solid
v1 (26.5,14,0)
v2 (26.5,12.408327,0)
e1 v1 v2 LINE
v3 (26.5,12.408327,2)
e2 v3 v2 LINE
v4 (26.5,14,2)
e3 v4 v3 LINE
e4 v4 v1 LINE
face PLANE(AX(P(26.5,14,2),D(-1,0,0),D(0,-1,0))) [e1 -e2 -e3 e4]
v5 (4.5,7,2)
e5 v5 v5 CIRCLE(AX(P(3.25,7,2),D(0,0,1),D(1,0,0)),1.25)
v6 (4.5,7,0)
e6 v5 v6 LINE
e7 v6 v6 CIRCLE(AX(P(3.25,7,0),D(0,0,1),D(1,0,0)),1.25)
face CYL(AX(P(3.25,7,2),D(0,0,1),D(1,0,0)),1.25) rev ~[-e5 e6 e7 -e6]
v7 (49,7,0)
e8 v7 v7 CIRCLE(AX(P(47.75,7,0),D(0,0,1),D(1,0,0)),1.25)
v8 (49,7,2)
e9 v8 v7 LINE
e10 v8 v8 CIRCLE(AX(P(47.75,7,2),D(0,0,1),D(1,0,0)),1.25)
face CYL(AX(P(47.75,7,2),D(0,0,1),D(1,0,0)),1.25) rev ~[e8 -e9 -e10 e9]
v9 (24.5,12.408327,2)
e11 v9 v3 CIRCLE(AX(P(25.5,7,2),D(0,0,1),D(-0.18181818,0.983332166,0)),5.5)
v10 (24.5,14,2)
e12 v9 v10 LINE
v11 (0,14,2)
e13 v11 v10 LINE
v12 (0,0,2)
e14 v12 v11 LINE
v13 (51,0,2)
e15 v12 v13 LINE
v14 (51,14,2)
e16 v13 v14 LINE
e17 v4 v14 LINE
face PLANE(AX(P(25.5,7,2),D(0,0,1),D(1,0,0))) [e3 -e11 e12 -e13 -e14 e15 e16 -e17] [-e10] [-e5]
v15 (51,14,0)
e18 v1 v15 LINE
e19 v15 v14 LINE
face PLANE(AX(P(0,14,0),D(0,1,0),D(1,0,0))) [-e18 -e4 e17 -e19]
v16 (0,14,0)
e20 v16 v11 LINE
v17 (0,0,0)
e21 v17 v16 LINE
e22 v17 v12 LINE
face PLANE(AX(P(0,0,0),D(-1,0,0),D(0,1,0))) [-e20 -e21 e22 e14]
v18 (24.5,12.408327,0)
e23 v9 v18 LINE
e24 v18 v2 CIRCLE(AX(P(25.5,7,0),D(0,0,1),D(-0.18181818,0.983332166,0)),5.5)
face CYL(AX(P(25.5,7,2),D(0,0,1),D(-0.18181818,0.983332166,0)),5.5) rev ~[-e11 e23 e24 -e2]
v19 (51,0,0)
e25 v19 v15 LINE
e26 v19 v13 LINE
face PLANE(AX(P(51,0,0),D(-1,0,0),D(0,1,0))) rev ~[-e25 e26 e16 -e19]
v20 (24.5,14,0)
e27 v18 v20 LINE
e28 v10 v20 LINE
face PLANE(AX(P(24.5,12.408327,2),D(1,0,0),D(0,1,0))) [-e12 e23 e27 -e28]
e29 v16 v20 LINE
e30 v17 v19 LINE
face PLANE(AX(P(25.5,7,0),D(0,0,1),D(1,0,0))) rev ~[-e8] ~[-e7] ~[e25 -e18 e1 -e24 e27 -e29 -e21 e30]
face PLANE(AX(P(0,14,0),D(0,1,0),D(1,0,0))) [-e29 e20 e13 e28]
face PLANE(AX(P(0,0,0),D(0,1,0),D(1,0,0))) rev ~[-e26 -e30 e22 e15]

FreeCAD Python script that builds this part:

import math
import FreeCAD as App
import Part
import Sketcher
from FreeCAD import Vector


def add_polygon(sketch, points):
    """Adds a closed chain of lines whose ends are joined by coincident constraints."""
    first, n = sketch.GeometryCount, len(points)
    for a, b in zip(points, points[1:] + points[:1]):
        sketch.addGeometry(Part.LineSegment(App.Vector(*a, 0), App.Vector(*b, 0)), False)
    for i in range(n):
        sketch.addConstraint(Sketcher.Constraint("Coincident", first + i, 2, first + (i + 1) % n, 1))

doc = App.newDocument("Part")
body = doc.addObject("PartDesign::Body", "Body")

sketch1 = body.newObject("Sketcher::SketchObject", "Sketch")
sketch1.AttachmentSupport = (doc.getObject("XY_Plane"), [""])
sketch1.MapMode = "FlatFace"
add_polygon(sketch1, [(0, 14), (0, 0), (51, 0), (51, 14)])
sketch1.addConstraint(Sketcher.Constraint("Vertical", 0))
sketch1.addConstraint(Sketcher.Constraint("Horizontal", 1))
sketch1.addConstraint(Sketcher.Constraint("Vertical", 2))
sketch1.addConstraint(Sketcher.Constraint("Horizontal", 3))
sketch1.addConstraint(Sketcher.Constraint("Coincident", 0, 2, -1, 1))
sketch1.addConstraint(Sketcher.Constraint("DistanceX", 1, 1, 1, 2, 51.0))
sketch1.addConstraint(Sketcher.Constraint("DistanceY", 0, 2, 0, 1, 14.0))
pad1 = body.newObject("PartDesign::Pad", "Pad")
pad1.Profile = sketch1
pad1.Length = 2

sketch2 = body.newObject("Sketcher::SketchObject", "Sketch001")
sketch2.AttachmentSupport = (doc.getObject("XY_Plane"), [""])
sketch2.MapMode = "FlatFace"
sketch2.AttachmentOffset = App.Placement(Vector(0, 0, 2), App.Rotation())
sketch2.addGeometry(Part.Circle(Vector(3.2, 7, 0), Vector(0, 0, 1), 1.2), False)
sketch2.addGeometry(Part.Circle(Vector(47.8, 7, 0), Vector(0, 0, 1), 1.2), False)
sketch2.addGeometry(Part.LineSegment(Vector(24.5, 14, 0), Vector(24.5, 12.4, 0)), False)
sketch2.addGeometry(Part.ArcOfCircle(Part.Circle(Vector(25.5, 7, 0), Vector(0, 0, 1), 5.5), math.radians(100), math.radians(440)), False)
sketch2.addGeometry(Part.LineSegment(Vector(26.5, 12.4, 0), Vector(26.5, 14, 0)), False)
sketch2.addGeometry(Part.LineSegment(Vector(26.5, 14, 0), Vector(24.5, 14, 0)), False)
sketch2.addConstraint(Sketcher.Constraint("Coincident", 2, 2, 3, 1))
sketch2.addConstraint(Sketcher.Constraint("Coincident", 3, 2, 4, 1))
sketch2.addConstraint(Sketcher.Constraint("Coincident", 4, 2, 5, 1))
sketch2.addConstraint(Sketcher.Constraint("Coincident", 5, 2, 2, 1))
sketch2.addConstraint(Sketcher.Constraint("Vertical", 2))
sketch2.addConstraint(Sketcher.Constraint("Vertical", 4))
sketch2.addConstraint(Sketcher.Constraint("Horizontal", 5))
sketch2.addConstraint(Sketcher.Constraint("Equal", 0, 1))
sketch2.addConstraint(Sketcher.Constraint("Horizontal", 0, 3, 1, 3))
sketch2.addConstraint(Sketcher.Constraint("Horizontal", 1, 3, 3, 3))
sketch2.addConstraint(Sketcher.Constraint("Horizontal", 2, 2, 3, 2))
sketch2.addConstraint(Sketcher.Constraint("Diameter", 0, 2.5))
sketch2.addConstraint(Sketcher.Constraint("Radius", 3, 5.5))
sketch2.addConstraint(Sketcher.Constraint("DistanceX", 5, 2, 5, 1, 2.0))
sketch2.addConstraint(Sketcher.Constraint("DistanceY", -1, 1, 0, 3, 7.0))
sketch2.addConstraint(Sketcher.Constraint("DistanceY", -1, 1, 4, 2, 14.0))
sketch2.addConstraint(Sketcher.Constraint("DistanceX", -1, 1, 3, 3, 25.5))
sketch2.addConstraint(Sketcher.Constraint("DistanceX", 0, 3, 1, 3, 44.5))
sketch2.addConstraint(Sketcher.Constraint("DistanceX", -1, 1, 0, 3, 3.25))
pocket1 = body.newObject("PartDesign::Pocket", "Pocket")
pocket1.Profile = sketch2
pocket1.Length = 5

doc.recompute()
